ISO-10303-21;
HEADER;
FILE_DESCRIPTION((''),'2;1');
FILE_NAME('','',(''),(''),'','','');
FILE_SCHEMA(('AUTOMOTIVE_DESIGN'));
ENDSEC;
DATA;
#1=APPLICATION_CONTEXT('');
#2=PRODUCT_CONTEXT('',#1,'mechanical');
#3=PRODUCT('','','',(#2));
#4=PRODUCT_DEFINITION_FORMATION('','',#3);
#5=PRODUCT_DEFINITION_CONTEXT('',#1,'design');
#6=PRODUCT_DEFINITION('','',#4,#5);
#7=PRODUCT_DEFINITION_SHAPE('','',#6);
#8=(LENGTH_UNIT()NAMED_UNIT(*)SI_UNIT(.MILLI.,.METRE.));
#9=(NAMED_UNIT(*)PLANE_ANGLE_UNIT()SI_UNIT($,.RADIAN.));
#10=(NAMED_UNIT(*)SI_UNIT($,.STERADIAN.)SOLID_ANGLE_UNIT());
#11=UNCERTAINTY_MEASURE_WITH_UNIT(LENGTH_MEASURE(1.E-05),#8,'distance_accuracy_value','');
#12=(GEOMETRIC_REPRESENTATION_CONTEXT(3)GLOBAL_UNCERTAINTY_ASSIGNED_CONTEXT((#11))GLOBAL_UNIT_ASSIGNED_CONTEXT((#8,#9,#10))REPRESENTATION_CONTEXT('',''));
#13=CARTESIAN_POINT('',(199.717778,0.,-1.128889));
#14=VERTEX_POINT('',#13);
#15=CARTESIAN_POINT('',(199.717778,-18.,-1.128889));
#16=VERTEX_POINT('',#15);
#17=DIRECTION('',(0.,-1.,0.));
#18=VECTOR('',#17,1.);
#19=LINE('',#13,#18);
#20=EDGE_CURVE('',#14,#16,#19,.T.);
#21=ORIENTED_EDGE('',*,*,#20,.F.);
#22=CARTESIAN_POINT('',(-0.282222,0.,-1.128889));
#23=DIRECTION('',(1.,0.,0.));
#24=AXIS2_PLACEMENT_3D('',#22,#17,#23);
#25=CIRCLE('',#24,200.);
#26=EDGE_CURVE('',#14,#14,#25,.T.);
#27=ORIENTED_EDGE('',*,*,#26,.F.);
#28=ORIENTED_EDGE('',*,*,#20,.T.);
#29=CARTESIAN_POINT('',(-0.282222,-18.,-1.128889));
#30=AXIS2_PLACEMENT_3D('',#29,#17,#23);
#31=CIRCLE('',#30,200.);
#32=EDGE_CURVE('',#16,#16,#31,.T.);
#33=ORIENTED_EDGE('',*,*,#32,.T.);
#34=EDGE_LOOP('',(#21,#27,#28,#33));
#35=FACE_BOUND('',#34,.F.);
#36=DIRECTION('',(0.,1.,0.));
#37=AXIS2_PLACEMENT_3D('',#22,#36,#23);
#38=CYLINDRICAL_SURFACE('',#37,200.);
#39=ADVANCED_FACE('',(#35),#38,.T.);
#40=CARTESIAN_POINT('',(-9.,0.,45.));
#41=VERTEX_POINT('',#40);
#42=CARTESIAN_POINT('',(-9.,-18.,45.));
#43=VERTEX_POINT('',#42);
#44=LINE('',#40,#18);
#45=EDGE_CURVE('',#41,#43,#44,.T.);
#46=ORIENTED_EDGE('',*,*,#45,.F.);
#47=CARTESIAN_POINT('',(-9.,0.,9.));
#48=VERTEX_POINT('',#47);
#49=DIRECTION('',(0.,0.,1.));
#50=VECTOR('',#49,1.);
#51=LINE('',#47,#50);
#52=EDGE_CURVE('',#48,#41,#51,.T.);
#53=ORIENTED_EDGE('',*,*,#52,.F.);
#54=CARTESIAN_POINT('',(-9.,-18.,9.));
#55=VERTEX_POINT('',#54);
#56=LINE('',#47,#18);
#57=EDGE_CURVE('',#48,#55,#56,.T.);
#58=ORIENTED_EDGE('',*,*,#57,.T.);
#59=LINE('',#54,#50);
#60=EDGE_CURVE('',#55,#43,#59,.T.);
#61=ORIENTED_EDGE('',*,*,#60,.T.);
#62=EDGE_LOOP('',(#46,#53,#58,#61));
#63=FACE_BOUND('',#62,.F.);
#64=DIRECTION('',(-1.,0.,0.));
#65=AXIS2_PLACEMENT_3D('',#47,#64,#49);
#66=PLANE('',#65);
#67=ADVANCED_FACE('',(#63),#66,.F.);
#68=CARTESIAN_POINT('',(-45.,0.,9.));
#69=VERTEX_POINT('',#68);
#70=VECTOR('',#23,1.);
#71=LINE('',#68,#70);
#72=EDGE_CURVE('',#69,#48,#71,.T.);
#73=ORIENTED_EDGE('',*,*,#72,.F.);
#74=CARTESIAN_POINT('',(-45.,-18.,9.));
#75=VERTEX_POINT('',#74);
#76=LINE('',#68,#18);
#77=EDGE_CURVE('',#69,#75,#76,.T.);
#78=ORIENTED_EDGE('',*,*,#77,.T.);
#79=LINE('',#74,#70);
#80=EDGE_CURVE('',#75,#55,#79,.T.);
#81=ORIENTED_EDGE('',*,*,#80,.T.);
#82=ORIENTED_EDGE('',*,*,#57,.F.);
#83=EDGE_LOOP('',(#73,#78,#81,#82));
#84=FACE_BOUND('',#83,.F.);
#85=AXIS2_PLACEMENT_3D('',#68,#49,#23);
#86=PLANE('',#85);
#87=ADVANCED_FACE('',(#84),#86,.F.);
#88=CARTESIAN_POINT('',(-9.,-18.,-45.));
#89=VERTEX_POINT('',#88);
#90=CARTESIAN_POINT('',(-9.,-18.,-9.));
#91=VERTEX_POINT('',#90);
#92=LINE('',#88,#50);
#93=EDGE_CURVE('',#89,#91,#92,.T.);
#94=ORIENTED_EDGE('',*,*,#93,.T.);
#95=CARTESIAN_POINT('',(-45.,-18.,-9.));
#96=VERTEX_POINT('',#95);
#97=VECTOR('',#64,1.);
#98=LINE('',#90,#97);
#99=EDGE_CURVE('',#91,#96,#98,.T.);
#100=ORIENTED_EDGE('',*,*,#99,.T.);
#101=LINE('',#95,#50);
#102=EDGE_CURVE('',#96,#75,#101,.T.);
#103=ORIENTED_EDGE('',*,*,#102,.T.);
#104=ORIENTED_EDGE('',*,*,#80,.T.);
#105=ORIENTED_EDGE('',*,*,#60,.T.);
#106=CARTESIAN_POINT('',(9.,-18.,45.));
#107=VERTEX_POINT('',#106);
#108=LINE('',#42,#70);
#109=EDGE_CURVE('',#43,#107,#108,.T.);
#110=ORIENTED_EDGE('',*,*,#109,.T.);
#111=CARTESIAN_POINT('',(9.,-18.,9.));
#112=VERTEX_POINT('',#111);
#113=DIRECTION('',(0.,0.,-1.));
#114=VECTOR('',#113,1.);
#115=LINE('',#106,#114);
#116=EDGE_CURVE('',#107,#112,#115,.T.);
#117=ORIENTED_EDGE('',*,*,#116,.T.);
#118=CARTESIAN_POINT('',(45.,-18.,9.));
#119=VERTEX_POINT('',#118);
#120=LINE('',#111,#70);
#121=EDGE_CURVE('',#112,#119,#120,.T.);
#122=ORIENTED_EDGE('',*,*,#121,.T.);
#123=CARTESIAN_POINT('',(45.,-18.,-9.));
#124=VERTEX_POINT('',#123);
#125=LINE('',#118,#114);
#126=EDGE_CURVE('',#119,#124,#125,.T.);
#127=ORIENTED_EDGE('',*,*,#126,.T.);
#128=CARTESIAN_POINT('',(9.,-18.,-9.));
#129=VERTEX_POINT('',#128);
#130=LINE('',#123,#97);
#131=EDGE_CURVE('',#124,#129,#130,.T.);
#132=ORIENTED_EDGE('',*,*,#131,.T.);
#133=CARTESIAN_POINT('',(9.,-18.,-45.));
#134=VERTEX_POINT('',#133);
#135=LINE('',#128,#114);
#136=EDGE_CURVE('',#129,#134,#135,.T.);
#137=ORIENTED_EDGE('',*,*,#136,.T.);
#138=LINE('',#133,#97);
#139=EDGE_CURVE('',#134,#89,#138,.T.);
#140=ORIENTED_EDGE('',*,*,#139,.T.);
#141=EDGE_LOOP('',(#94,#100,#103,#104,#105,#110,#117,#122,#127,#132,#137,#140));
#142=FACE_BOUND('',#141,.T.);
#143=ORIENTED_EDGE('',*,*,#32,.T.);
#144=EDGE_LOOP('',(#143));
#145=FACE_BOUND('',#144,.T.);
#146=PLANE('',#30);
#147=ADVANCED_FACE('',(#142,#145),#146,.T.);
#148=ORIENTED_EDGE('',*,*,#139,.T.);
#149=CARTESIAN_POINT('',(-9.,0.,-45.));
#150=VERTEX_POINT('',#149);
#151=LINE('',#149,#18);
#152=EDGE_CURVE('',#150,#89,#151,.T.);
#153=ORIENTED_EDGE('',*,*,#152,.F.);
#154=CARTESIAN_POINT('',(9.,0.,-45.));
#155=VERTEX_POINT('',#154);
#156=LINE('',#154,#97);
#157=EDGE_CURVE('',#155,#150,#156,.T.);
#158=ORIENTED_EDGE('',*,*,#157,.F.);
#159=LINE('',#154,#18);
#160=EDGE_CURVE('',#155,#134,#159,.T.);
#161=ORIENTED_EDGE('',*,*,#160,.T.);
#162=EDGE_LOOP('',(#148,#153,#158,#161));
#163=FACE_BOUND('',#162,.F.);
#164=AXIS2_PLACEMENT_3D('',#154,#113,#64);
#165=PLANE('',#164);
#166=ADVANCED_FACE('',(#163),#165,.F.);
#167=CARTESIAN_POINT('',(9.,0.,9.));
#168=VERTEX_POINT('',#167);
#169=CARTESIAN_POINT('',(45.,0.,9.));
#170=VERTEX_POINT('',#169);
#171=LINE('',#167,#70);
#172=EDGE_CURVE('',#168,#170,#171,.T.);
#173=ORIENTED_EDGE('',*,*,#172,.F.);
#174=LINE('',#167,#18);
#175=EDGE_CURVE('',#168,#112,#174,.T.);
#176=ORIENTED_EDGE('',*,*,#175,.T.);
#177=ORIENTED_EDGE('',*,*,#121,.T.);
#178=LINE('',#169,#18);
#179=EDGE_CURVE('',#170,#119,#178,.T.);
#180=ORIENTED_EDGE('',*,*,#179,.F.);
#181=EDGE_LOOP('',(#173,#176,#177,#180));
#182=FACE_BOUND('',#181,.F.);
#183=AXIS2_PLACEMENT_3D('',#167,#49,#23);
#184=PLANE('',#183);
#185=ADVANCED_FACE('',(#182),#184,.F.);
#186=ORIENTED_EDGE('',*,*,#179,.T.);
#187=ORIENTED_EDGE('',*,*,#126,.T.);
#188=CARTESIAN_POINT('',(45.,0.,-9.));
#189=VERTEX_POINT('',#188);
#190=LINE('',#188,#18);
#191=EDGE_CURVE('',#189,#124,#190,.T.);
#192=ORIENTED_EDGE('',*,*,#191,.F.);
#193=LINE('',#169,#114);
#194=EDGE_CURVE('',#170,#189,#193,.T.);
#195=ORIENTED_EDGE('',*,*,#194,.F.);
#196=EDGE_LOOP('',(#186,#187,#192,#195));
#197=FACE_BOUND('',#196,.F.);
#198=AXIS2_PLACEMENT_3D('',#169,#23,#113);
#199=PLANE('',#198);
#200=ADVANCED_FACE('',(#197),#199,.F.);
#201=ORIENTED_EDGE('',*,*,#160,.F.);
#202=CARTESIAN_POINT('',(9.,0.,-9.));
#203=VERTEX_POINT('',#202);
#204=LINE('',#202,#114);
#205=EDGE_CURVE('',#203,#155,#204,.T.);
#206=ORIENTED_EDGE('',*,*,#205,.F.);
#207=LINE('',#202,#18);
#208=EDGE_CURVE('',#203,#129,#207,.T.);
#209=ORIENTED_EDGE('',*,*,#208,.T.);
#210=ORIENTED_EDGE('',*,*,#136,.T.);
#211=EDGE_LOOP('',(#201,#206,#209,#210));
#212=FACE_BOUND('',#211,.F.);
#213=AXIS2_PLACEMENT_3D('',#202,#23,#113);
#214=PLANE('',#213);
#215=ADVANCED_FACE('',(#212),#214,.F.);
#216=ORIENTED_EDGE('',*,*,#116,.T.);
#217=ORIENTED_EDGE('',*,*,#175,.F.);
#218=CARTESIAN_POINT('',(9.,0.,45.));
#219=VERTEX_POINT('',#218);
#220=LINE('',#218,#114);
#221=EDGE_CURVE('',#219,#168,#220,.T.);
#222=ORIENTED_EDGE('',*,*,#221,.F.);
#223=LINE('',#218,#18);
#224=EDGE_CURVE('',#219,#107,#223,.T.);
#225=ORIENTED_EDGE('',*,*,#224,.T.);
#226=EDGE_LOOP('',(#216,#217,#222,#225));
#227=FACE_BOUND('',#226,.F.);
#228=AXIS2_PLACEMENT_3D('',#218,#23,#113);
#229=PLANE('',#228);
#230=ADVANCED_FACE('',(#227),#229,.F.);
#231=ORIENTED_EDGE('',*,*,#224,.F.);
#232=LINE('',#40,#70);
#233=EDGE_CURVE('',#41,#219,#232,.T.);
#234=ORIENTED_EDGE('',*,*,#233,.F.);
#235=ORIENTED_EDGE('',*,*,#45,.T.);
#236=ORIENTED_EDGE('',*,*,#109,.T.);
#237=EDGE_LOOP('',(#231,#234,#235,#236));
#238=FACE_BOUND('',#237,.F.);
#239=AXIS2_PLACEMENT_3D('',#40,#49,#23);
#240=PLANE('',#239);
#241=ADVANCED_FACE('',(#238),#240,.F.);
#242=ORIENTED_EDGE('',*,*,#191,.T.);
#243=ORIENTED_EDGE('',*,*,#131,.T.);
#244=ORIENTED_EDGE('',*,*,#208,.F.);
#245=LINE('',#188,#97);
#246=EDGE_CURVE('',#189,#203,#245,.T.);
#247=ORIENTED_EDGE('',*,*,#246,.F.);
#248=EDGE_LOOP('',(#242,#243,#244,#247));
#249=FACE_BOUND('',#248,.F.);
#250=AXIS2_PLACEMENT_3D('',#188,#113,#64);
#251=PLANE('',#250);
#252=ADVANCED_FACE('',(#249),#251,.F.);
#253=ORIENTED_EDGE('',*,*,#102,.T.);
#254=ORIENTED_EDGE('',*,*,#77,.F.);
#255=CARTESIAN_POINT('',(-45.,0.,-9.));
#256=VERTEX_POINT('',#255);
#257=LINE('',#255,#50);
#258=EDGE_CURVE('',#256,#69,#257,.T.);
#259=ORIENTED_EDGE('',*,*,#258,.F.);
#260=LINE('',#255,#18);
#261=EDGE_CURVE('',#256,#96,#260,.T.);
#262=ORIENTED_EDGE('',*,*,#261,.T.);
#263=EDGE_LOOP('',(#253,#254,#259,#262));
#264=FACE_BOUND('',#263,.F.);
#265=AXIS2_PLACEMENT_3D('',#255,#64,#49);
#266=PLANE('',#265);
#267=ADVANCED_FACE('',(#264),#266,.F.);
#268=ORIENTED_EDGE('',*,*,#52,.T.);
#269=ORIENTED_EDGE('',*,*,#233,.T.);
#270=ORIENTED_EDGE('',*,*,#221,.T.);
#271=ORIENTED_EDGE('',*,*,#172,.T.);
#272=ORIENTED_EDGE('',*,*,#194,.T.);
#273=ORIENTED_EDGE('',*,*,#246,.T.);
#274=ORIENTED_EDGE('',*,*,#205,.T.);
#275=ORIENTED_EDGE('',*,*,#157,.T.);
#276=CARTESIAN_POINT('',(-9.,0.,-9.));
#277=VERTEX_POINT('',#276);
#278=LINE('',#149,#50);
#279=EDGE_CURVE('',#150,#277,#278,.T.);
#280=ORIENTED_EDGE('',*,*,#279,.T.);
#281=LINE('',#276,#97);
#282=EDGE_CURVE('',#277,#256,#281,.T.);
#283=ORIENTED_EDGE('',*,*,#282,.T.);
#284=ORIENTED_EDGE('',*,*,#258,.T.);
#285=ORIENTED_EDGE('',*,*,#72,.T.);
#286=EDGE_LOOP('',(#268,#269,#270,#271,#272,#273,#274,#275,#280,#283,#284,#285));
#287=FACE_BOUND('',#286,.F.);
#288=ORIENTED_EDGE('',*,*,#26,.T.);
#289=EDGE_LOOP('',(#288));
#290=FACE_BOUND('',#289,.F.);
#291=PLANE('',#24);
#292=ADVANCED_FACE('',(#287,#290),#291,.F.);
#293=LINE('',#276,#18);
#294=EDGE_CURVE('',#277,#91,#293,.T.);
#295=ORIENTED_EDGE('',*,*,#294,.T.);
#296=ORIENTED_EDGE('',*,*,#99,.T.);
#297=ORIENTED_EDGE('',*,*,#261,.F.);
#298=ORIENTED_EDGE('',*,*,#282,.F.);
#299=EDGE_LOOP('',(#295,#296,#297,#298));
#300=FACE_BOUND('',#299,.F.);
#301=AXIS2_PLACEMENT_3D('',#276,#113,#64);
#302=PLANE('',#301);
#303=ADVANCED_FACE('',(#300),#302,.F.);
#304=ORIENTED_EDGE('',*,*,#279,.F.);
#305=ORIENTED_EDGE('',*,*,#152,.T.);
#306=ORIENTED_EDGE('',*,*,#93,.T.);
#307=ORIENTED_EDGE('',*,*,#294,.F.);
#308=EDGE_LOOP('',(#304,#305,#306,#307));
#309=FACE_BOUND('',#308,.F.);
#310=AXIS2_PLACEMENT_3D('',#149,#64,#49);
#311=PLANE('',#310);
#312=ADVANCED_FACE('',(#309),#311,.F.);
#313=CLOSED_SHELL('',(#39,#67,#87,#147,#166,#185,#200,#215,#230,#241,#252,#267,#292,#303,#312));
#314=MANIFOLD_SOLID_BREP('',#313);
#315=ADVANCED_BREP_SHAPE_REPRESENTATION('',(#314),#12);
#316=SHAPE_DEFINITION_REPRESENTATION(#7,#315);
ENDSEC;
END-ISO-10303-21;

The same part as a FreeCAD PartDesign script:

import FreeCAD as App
import Part
import Sketcher

V = App.Vector
Q = App.Units.Quantity


def add_polygon(sketch, points):
    """Adds a closed chain of lines whose ends are joined by coincident constraints."""
    first, n = sketch.GeometryCount, len(points)
    for a, b in zip(points, points[1:] + points[:1]):
        sketch.addGeometry(Part.LineSegment(App.Vector(*a, 0), App.Vector(*b, 0)), False)
    for i in range(n):
        sketch.addConstraint(Sketcher.Constraint("Coincident", first + i, 2, first + (i + 1) % n, 1))

doc = App.newDocument("Part")
body = doc.addObject("PartDesign::Body", "Body")

sketch1 = body.newObject("Sketcher::SketchObject", "Sketch")
sketch1.AttachmentSupport = (doc.getObject("XZ_Plane"), [""])
sketch1.MapMode = "FlatFace"
sketch1.addGeometry(Part.Circle(V(-0.282222, -1.128889, 0), V(0, 0, 1), 200), False)
add_polygon(sketch1, [(45, -9), (9, -9), (9, -45), (-9, -45), (-9, -9), (-45, -9), (-45, 9), (-9, 9), (-9, 45), (9, 45), (9, 9), (45, 9)])
sketch1.addConstraint([
    Sketcher.Constraint("Horizontal", 1),
    Sketcher.Constraint("Vertical", 2),
    Sketcher.Constraint("Horizontal", 3),
    Sketcher.Constraint("Vertical", 4),
    Sketcher.Constraint("Horizontal", 5),
    Sketcher.Constraint("Vertical", 6),
    Sketcher.Constraint("Horizontal", 7),
    Sketcher.Constraint("Vertical", 8),
    Sketcher.Constraint("Horizontal", 9),
    Sketcher.Constraint("Vertical", 10),
    Sketcher.Constraint("Horizontal", 11),
    Sketcher.Constraint("Vertical", 12),
    Sketcher.Constraint("Symmetric", 1, 2, 7, 2, -1, 1),
    Sketcher.Constraint("Symmetric", 3, 2, 9, 2, -1, 1),
    Sketcher.Constraint("Symmetric", 5, 2, 11, 2, -1, 1),
    Sketcher.Constraint("Symmetric", 1, 2, 4, 2, -2),
    Sketcher.Constraint("Equal", 11, 2),
    Sketcher.Constraint("Equal", 9, 6),
    Sketcher.Constraint("Diameter", 0, Q("400 mm")),
    Sketcher.Constraint("DistanceX", 1, 2, 1, 1, Q("36 mm")),
    Sketcher.Constraint("DistanceX", 3, 2, 3, 1, Q("18 mm")),
    Sketcher.Constraint("DistanceX", 0, 3, -1, 1, Q("0.282222 mm")),
    Sketcher.Constraint("DistanceY", 0, 3, -1, 1, Q("1.128889 mm")),
])
pad1 = body.newObject("PartDesign::Pad", "Pad")
pad1.Profile = sketch1
pad1.Length = 18

doc.recompute()
